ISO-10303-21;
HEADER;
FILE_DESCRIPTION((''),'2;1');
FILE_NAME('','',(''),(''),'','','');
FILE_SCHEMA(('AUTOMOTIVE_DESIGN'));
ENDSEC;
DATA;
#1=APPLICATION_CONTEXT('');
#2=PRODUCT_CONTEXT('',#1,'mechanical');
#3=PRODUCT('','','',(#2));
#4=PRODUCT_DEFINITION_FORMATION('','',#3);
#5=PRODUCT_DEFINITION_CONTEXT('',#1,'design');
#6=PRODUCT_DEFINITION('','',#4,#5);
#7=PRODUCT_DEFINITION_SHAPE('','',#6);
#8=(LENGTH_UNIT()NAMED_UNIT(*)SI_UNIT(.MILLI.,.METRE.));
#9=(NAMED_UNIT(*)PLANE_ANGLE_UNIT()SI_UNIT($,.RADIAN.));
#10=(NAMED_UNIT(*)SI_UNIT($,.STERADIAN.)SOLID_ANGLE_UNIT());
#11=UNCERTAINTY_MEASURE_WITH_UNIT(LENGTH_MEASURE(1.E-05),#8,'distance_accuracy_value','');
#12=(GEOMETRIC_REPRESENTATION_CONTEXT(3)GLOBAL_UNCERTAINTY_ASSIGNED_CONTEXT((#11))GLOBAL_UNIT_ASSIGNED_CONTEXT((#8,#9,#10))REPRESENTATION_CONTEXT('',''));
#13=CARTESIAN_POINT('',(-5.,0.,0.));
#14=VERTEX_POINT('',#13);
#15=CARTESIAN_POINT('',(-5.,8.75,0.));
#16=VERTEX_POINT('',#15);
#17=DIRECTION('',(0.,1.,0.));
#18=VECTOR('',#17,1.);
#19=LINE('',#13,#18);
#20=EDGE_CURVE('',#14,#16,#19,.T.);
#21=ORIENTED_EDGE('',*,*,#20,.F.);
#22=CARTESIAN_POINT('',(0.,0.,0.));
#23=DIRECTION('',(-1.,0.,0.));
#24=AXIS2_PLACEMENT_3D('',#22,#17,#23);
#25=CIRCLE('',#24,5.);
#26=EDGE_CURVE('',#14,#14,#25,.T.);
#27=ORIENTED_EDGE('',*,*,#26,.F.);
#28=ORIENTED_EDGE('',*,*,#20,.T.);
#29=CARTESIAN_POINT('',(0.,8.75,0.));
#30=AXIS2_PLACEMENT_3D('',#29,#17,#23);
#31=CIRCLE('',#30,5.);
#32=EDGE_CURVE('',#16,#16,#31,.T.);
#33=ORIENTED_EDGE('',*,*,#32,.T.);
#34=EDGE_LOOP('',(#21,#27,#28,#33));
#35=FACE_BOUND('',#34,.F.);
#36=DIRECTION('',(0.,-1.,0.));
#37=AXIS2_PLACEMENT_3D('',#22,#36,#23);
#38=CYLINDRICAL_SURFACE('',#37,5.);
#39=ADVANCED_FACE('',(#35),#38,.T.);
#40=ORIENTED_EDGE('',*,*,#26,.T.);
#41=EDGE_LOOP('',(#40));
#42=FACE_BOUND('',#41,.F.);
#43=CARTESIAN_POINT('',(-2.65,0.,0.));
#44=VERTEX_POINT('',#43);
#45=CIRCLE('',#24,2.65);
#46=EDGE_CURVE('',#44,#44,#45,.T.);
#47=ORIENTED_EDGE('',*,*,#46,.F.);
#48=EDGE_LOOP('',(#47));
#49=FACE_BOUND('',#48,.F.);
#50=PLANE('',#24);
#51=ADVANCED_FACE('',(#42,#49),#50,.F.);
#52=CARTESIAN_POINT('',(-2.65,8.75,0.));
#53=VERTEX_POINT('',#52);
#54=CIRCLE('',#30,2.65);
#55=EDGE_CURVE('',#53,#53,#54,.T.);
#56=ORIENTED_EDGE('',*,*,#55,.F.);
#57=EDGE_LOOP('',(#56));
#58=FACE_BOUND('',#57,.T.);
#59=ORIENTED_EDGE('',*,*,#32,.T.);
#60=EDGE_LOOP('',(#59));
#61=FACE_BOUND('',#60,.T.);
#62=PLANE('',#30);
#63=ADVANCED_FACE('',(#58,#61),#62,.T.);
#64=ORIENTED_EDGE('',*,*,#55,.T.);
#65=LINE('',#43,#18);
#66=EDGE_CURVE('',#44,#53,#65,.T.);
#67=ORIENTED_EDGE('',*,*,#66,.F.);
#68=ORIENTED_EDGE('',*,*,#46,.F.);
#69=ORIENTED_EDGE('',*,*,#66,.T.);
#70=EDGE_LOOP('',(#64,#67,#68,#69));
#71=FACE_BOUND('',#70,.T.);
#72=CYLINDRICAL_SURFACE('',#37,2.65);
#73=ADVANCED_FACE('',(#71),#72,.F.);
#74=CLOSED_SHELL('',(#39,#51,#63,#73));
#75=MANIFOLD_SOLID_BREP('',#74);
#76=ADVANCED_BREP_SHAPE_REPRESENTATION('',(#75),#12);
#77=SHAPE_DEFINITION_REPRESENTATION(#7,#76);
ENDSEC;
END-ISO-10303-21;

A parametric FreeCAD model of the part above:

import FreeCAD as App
import Part
import Sketcher
from FreeCAD import Vector
Q = App.Units.Quantity

doc = App.newDocument("Part")
params = doc.addObject("Spreadsheet::Sheet", "Params")
for row, (alias, value) in enumerate([
    ("sketch1_diameter", "10 mm"),
    ("sketch1_diameter2", "5.3 mm"),
    ("pad1_length", "8.75 mm"),
], start=1):
    params.set(f"A{row}", alias)
    params.set(f"B{row}", "=" + value)
    params.setAlias(f"B{row}", alias)

body = doc.addObject("PartDesign::Body", "Body")

# Sketch on XZ plane
sketch1 = body.newObject("Sketcher::SketchObject", "Sketch")
sketch1.AttachmentSupport = (doc.getObject("XZ_Plane"), [""])
sketch1.MapMode = "FlatFace"
sketch1.addGeometry(Part.Circle(Vector(0, 0, 0), Vector(0, 0, 1), 5), False)
sketch1.addGeometry(Part.Circle(Vector(0, 0, 0), Vector(0, 0, 1), 2.6), False)
sketch1.addConstraint(Sketcher.Constraint("Coincident", 0, 3, -1, 1))
sketch1.addConstraint(Sketcher.Constraint("Coincident", 1, 3, -1, 1))
sketch1.addConstraint(Sketcher.Constraint("Diameter", 0, Q("10 mm")))
sketch1.addConstraint(Sketcher.Constraint("Diameter", 1, Q("5.3 mm")))
sketch1.setExpression("Constraints[2]", "Params.sketch1_diameter")
sketch1.setExpression("Constraints[3]", "Params.sketch1_diameter2")
pad1 = body.newObject("PartDesign::Pad", "Pad")
pad1.Profile = sketch1
pad1.setExpression("Length", "Params.pad1_length")
pad1.Reversed = True

doc.recompute()
